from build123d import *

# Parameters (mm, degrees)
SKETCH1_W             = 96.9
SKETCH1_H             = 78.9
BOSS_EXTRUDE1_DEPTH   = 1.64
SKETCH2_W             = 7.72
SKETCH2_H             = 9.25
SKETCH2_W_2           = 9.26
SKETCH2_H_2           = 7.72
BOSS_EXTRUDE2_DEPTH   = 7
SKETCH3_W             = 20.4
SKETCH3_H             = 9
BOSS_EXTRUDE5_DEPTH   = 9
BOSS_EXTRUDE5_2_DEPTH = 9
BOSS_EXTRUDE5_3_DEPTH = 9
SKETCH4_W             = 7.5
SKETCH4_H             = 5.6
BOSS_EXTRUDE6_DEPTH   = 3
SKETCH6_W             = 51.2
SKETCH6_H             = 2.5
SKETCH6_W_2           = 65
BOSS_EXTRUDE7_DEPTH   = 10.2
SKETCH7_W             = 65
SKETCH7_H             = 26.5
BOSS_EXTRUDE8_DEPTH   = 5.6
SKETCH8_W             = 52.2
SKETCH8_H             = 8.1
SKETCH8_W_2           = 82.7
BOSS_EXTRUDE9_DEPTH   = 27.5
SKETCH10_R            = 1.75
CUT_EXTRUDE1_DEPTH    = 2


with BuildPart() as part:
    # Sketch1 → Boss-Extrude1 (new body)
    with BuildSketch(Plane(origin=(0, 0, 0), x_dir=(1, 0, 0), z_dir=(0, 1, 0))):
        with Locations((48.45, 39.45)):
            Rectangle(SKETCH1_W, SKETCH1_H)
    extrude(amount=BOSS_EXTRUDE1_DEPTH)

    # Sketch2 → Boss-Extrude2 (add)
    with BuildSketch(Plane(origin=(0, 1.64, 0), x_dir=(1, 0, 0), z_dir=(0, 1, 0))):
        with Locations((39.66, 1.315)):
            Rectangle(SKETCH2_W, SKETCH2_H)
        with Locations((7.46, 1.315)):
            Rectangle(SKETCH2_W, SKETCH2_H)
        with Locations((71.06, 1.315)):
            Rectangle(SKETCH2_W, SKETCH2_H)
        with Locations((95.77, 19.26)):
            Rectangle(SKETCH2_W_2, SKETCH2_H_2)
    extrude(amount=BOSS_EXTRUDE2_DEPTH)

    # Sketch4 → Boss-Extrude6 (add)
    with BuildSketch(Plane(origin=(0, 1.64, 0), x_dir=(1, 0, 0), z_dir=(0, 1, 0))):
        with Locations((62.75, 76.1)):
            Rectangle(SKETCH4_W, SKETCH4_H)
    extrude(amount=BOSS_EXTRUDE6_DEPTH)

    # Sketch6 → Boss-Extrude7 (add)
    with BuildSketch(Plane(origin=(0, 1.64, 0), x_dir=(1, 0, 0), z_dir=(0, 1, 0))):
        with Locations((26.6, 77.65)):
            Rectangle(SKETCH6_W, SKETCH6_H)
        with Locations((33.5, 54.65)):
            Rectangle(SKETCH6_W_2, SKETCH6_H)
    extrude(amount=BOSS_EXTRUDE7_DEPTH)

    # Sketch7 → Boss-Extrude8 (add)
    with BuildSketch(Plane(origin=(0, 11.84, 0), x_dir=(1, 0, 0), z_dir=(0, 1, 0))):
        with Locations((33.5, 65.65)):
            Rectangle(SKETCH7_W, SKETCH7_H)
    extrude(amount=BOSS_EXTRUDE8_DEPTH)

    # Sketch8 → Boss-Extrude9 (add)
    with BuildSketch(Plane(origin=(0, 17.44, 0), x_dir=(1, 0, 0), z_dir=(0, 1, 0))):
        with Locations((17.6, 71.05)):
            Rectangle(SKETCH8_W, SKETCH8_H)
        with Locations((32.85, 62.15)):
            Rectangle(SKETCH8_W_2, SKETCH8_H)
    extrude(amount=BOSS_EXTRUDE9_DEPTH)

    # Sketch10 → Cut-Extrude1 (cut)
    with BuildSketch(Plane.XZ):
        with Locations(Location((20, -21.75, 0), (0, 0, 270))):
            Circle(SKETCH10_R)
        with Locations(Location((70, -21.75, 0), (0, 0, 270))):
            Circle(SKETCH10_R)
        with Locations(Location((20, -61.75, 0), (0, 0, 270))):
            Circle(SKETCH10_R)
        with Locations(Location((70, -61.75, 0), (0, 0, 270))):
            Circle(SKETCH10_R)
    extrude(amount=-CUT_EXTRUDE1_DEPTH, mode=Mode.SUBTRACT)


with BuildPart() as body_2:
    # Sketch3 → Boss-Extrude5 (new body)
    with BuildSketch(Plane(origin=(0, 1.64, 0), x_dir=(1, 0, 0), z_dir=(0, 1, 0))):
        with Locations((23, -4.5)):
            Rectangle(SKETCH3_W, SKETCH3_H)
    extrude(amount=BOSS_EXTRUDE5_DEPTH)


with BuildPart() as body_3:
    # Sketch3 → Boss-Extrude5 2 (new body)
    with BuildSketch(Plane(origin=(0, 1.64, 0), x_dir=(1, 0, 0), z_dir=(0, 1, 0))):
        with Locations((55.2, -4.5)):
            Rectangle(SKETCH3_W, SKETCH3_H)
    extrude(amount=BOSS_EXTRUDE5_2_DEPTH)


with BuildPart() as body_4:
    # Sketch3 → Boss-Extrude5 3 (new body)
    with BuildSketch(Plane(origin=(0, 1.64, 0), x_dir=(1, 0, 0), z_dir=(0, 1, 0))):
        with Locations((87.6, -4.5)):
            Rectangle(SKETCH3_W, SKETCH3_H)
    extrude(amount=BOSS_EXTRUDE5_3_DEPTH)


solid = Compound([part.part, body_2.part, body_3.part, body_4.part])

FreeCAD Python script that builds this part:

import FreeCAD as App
import Part
import Sketcher
from FreeCAD import Vector


def add_polygon(sketch, points):
    """Adds a closed chain of lines whose ends are joined by coincident constraints."""
    first, n = sketch.GeometryCount, len(points)
    for a, b in zip(points, points[1:] + points[:1]):
        sketch.addGeometry(Part.LineSegment(App.Vector(*a, 0), App.Vector(*b, 0)), False)
    for i in range(n):
        sketch.addConstraint(Sketcher.Constraint("Coincident", first + i, 2, first + (i + 1) % n, 1))

doc = App.newDocument("Part")
body = doc.addObject("PartDesign::Body", "Body")

# Sketch on XZ plane
sketch1 = doc.addObject("Sketcher::SketchObject", "Sketch")
body.addObject(sketch1)
sketch1.AttachmentSupport = (doc.XZ_Plane, [""])
sketch1.MapMode = "FlatFace"
add_polygon(sketch1, [(0, -79), (0, 0), (97, 0), (97, -79)])  # lines 0-3
sketch1.addConstraint([
    Sketcher.Constraint("Vertical", 0),
    Sketcher.Constraint("Horizontal", 1),
    Sketcher.Constraint("Vertical", 2),
    Sketcher.Constraint("Horizontal", 3),
    Sketcher.Constraint("Coincident", 0, 2, -1, 1),
    Sketcher.Constraint("DistanceX", 1, 1, 1, 2, 96.9),
    Sketcher.Constraint("DistanceY", 0, 1, 0, 2, 78.9),
])
pad1 = doc.addObject("PartDesign::Pad", "Pad")
body.addObject(pad1)
pad1.Profile = sketch1
pad1.Length = 1.64
pad1.Reversed = True

# Sketch on XZ plane
sketch2 = doc.addObject("Sketcher::SketchObject", "Sketch001")
body.addObject(sketch2)
sketch2.AttachmentSupport = (doc.XZ_Plane, [""])
sketch2.MapMode = "FlatFace"
sketch2.AttachmentOffset = App.Placement(Vector(0, 0, -1.64), App.Rotation())
add_polygon(sketch2, [(36, -6), (36, 3), (44, 3), (44, -6)])  # lines 0-3
add_polygon(sketch2, [(4, -6), (4, 3), (11, 3), (11, -6)])  # lines 4-7
add_polygon(sketch2, [(67, -6), (67, 3), (75, 3), (75, -6)])  # lines 8-11
add_polygon(sketch2, [(91, -23), (91, -15), (100, -15), (100, -23)])  # lines 12-15
sketch2.addConstraint([
    Sketcher.Constraint("Vertical", 0),
    Sketcher.Constraint("Horizontal", 1),
    Sketcher.Constraint("Vertical", 2),
    Sketcher.Constraint("Horizontal", 3),
    Sketcher.Constraint("Vertical", 4),
    Sketcher.Constraint("Horizontal", 5),
    Sketcher.Constraint("Vertical", 6),
    Sketcher.Constraint("Horizontal", 7),
    Sketcher.Constraint("Vertical", 8),
    Sketcher.Constraint("Horizontal", 9),
    Sketcher.Constraint("Vertical", 10),
    Sketcher.Constraint("Horizontal", 11),
    Sketcher.Constraint("Vertical", 12),
    Sketcher.Constraint("Horizontal", 13),
    Sketcher.Constraint("Vertical", 14),
    Sketcher.Constraint("Horizontal", 15),
    Sketcher.Constraint("Horizontal", 1, 2, 4, 2),
    Sketcher.Constraint("Horizontal", 3, 2, 6, 2),
    Sketcher.Constraint("Horizontal", 5, 2, 8, 2),
    Sketcher.Constraint("Horizontal", 7, 2, 10, 2),
    Sketcher.Constraint("Equal", 3, 5),
    Sketcher.Constraint("Equal", 7, 9),
    Sketcher.Constraint("Equal", 11, 12),
    Sketcher.Constraint("DistanceX", 1, 1, 1, 2, 7.72),
    Sketcher.Constraint("DistanceX", 13, 1, 13, 2, 9.26),
    Sketcher.Constraint("DistanceY", 0, 1, 0, 2, 9.25),
    Sketcher.Constraint("DistanceX", -1, 1, 0, 2, 35.8),
    Sketcher.Constraint("DistanceX", -1, 1, 4, 2, 3.6),
    Sketcher.Constraint("DistanceX", -1, 1, 8, 2, 67.2),
    Sketcher.Constraint("DistanceY", 12, 2, -1, 1, 15.4),
    Sketcher.Constraint("DistanceX", -1, 1, 13, 2, 100.4),
    Sketcher.Constraint("DistanceY", -1, 1, 0, 2, 3.31),
])
pad2 = doc.addObject("PartDesign::Pad", "Pad001")
body.addObject(pad2)
pad2.Profile = sketch2
pad2.Length = 7
pad2.Reversed = True

# Sketch on XZ plane
sketch3 = doc.addObject("Sketcher::SketchObject", "Sketch002")
body.addObject(sketch3)
sketch3.AttachmentSupport = (doc.XZ_Plane, [""])
sketch3.MapMode = "FlatFace"
sketch3.AttachmentOffset = App.Placement(Vector(0, 0, -1.64), App.Rotation())
add_polygon(sketch3, [(59, -79), (59, -73), (66, -73), (66, -79)])  # lines 0-3
sketch3.addConstraint([
    Sketcher.Constraint("Vertical", 0),
    Sketcher.Constraint("Horizontal", 1),
    Sketcher.Constraint("Vertical", 2),
    Sketcher.Constraint("Horizontal", 3),
    Sketcher.Constraint("DistanceX", 1, 1, 1, 2, 7.5),
    Sketcher.Constraint("DistanceY", 0, 1, 0, 2, 5.6),
    Sketcher.Constraint("DistanceX", -1, 1, 0, 2, 59.0),
    Sketcher.Constraint("DistanceY", 0, 2, -1, 1, 73.3),
])
pad3 = doc.addObject("PartDesign::Pad", "Pad002")
body.addObject(pad3)
pad3.Profile = sketch3
pad3.Length = 3
pad3.Reversed = True

# Sketch on XZ plane
sketch4 = doc.addObject("Sketcher::SketchObject", "Sketch003")
body.addObject(sketch4)
sketch4.AttachmentSupport = (doc.XZ_Plane, [""])
sketch4.MapMode = "FlatFace"
sketch4.AttachmentOffset = App.Placement(Vector(0, 0, -1.64), App.Rotation())
add_polygon(sketch4, [(1, -78.9), (1, -76.4), (52.2, -76.4), (52.2, -78.9)])  # lines 0-3
add_polygon(sketch4, [(1, -55.9), (1, -53.4), (66, -53.4), (66, -55.9)])  # lines 4-7
sketch4.addConstraint([
    Sketcher.Constraint("Vertical", 0),
    Sketcher.Constraint("Horizontal", 1),
    Sketcher.Constraint("Vertical", 2),
    Sketcher.Constraint("Horizontal", 3),
    Sketcher.Constraint("Vertical", 4),
    Sketcher.Constraint("Horizontal", 5),
    Sketcher.Constraint("Vertical", 6),
    Sketcher.Constraint("Horizontal", 7),
    Sketcher.Constraint("Vertical", 3, 2, 4, 2),
    Sketcher.Constraint("Equal", 2, 4),
    Sketcher.Constraint("DistanceX", 5, 1, 5, 2, 65.0),
    Sketcher.Constraint("DistanceX", 1, 1, 1, 2, 51.2),
    Sketcher.Constraint("DistanceY", 0, 1, 0, 2, 2.5),
    Sketcher.Constraint("DistanceX", -1, 1, 0, 2, 1.0),
    Sketcher.Constraint("DistanceY", 0, 2, 4, 2, 23.0),
    Sketcher.Constraint("DistanceY", 0, 2, -1, 1, 76.4),
])
pad4 = doc.addObject("PartDesign::Pad", "Pad003")
body.addObject(pad4)
pad4.Profile = sketch4
pad4.Length = 10.2
pad4.Reversed = True

# Sketch on XZ plane
sketch5 = doc.addObject("Sketcher::SketchObject", "Sketch004")
body.addObject(sketch5)
sketch5.AttachmentSupport = (doc.XZ_Plane, [""])
sketch5.MapMode = "FlatFace"
sketch5.AttachmentOffset = App.Placement(Vector(0, 0, -11.84), App.Rotation())
add_polygon(sketch5, [(1, -79), (1, -52), (66, -52), (66, -79)])  # lines 0-3
sketch5.addConstraint([
    Sketcher.Constraint("Vertical", 0),
    Sketcher.Constraint("Horizontal", 1),
    Sketcher.Constraint("Vertical", 2),
    Sketcher.Constraint("Horizontal", 3),
    Sketcher.Constraint("DistanceX", 1, 1, 1, 2, 65.0),
    Sketcher.Constraint("DistanceY", 0, 1, 0, 2, 26.5),
    Sketcher.Constraint("DistanceX", -1, 1, 0, 2, 1.0),
    Sketcher.Constraint("DistanceY", 0, 2, -1, 1, 52.4),
])
pad5 = doc.addObject("PartDesign::Pad", "Pad004")
body.addObject(pad5)
pad5.Profile = sketch5
pad5.Length = 5.6
pad5.Reversed = True

# Sketch on XZ plane
sketch6 = doc.addObject("Sketcher::SketchObject", "Sketch005")
body.addObject(sketch6)
sketch6.AttachmentSupport = (doc.XZ_Plane, [""])
sketch6.MapMode = "FlatFace"
sketch6.AttachmentOffset = App.Placement(Vector(0, 0, -17.44), App.Rotation())
add_polygon(sketch6, [(-8, -75), (-8, -67), (44, -67), (44, -75)])  # lines 0-3
add_polygon(sketch6, [(-8, -66), (-8, -58), (74, -58), (74, -66)])  # lines 4-7
sketch6.addConstraint([
    Sketcher.Constraint("Vertical", 0),
    Sketcher.Constraint("Horizontal", 1),
    Sketcher.Constraint("Vertical", 2),
    Sketcher.Constraint("Horizontal", 3),
    Sketcher.Constraint("Vertical", 4),
    Sketcher.Constraint("Horizontal", 5),
    Sketcher.Constraint("Vertical", 6),
    Sketcher.Constraint("Horizontal", 7),
    Sketcher.Constraint("Vertical", 3, 2, 4, 2),
    Sketcher.Constraint("Equal", 2, 4),
    Sketcher.Constraint("DistanceX", 1, 1, 1, 2, 52.2),
    Sketcher.Constraint("DistanceX", 5, 1, 5, 2, 82.7),
    Sketcher.Constraint("DistanceY", 0, 1, 0, 2, 8.1),
    Sketcher.Constraint("DistanceY", 0, 2, -1, 1, 67.0),
    Sketcher.Constraint("DistanceY", 3, 2, 4, 2, 17.0),
    Sketcher.Constraint("DistanceX", 0, 2, -1, 1, 8.5),
])
pad6 = doc.addObject("PartDesign::Pad", "Pad005")
body.addObject(pad6)
pad6.Profile = sketch6
pad6.Length = 27.5
pad6.Reversed = True

# Sketch on XZ plane
sketch7 = doc.addObject("Sketcher::SketchObject", "Sketch006")
body.addObject(sketch7)
sketch7.AttachmentSupport = (doc.XZ_Plane, [""])
sketch7.MapMode = "FlatFace"
sketch7.addGeometry([
    Part.Circle(Vector(20, -21.8, 0), Vector(0, 0, 1), 1.8),
    Part.Circle(Vector(70, -21.8, 0), Vector(0, 0, 1), 1.8),
    Part.Circle(Vector(20, -61.8, 0), Vector(0, 0, 1), 1.8),
    Part.Circle(Vector(70, -61.8, 0), Vector(0, 0, 1), 1.8),
], False)
sketch7.addConstraint([
    Sketcher.Constraint("Equal", 0, 1),
    Sketcher.Constraint("Equal", 1, 2),
    Sketcher.Constraint("Equal", 2, 3),
    Sketcher.Constraint("Horizontal", 0, 3, 1, 3),
    Sketcher.Constraint("Horizontal", 2, 3, 3, 3),
    Sketcher.Constraint("Vertical", 0, 3, 2, 3),
    Sketcher.Constraint("Vertical", 1, 3, 3, 3),
    Sketcher.Constraint("Diameter", 0, 3.5),
    Sketcher.Constraint("DistanceX", -1, 1, 0, 3, 20.0),
    Sketcher.Constraint("DistanceX", -1, 1, 1, 3, 70.0),
    Sketcher.Constraint("DistanceY", 2, 3, 0, 3, 40.0),
    Sketcher.Constraint("DistanceY", 0, 3, -1, 1, 21.75),
])
pocket1 = doc.addObject("PartDesign::Pocket", "Pocket")
body.addObject(pocket1)
pocket1.Profile = sketch7
pocket1.Length = 2
body2 = doc.addObject("PartDesign::Body", "Body001")

# Sketch on XZ plane
sketch8 = doc.addObject("Sketcher::SketchObject", "Sketch007")
body2.addObject(sketch8)
sketch8.AttachmentSupport = (doc.getObject("XZ_Plane001"), [""])
sketch8.MapMode = "FlatFace"
sketch8.AttachmentOffset = App.Placement(Vector(0, 0, -1.64), App.Rotation())
add_polygon(sketch8, [(13, 0), (13, 9), (33, 9), (33, 0)])  # lines 0-3
sketch8.addConstraint([
    Sketcher.Constraint("Vertical", 0),
    Sketcher.Constraint("Horizontal", 1),
    Sketcher.Constraint("Vertical", 2),
    Sketcher.Constraint("Horizontal", 3),
    Sketcher.Constraint("PointOnObject", 2, 2, -1),
    Sketcher.Constraint("DistanceY", 0, 1, 0, 2, 9.0),
    Sketcher.Constraint("DistanceX", 1, 1, 1, 2, 20.4),
    Sketcher.Constraint("DistanceX", -1, 1, 0, 2, 12.8),
])
pad7 = doc.addObject("PartDesign::Pad", "Pad006")
body2.addObject(pad7)
pad7.Profile = sketch8
pad7.Length = 9
pad7.Reversed = True
body3 = doc.addObject("PartDesign::Body", "Body002")

# Sketch on XZ plane
sketch9 = doc.addObject("Sketcher::SketchObject", "Sketch008")
body3.addObject(sketch9)
sketch9.AttachmentSupport = (doc.getObject("XZ_Plane002"), [""])
sketch9.MapMode = "FlatFace"
sketch9.AttachmentOffset = App.Placement(Vector(0, 0, -1.64), App.Rotation())
add_polygon(sketch9, [(45, 0), (45, 9), (65, 9), (65, 0)])  # lines 0-3
sketch9.addConstraint([
    Sketcher.Constraint("Vertical", 0),
    Sketcher.Constraint("Horizontal", 1),
    Sketcher.Constraint("Vertical", 2),
    Sketcher.Constraint("Horizontal", 3),
    Sketcher.Constraint("PointOnObject", 2, 2, -1),
    Sketcher.Constraint("DistanceY", 0, 1, 0, 2, 9.0),
    Sketcher.Constraint("DistanceX", 1, 1, 1, 2, 20.4),
    Sketcher.Constraint("DistanceX", -1, 1, 0, 2, 45.0),
])
pad8 = doc.addObject("PartDesign::Pad", "Pad007")
body3.addObject(pad8)
pad8.Profile = sketch9
pad8.Length = 9
pad8.Reversed = True
body4 = doc.addObject("PartDesign::Body", "Body003")

# Sketch on XZ plane
sketch10 = doc.addObject("Sketcher::SketchObject", "Sketch009")
body4.addObject(sketch10)
sketch10.AttachmentSupport = (doc.getObject("XZ_Plane003"), [""])
sketch10.MapMode = "FlatFace"
sketch10.AttachmentOffset = App.Placement(Vector(0, 0, -1.64), App.Rotation())
add_polygon(sketch10, [(77, 0), (77, 9), (98, 9), (98, 0)])  # lines 0-3
sketch10.addConstraint([
    Sketcher.Constraint("Vertical", 0),
    Sketcher.Constraint("Horizontal", 1),
    Sketcher.Constraint("Vertical", 2),
    Sketcher.Constraint("Horizontal", 3),
    Sketcher.Constraint("PointOnObject", 2, 2, -1),
    Sketcher.Constraint("DistanceY", 0, 1, 0, 2, 9.0),
    Sketcher.Constraint("DistanceX", 1, 1, 1, 2, 20.4),
    Sketcher.Constraint("DistanceX", -1, 1, 0, 2, 77.4),
])
pad9 = doc.addObject("PartDesign::Pad", "Pad008")
body4.addObject(pad9)
pad9.Profile = sketch10
pad9.Length = 9
pad9.Reversed = True

doc.recompute()
